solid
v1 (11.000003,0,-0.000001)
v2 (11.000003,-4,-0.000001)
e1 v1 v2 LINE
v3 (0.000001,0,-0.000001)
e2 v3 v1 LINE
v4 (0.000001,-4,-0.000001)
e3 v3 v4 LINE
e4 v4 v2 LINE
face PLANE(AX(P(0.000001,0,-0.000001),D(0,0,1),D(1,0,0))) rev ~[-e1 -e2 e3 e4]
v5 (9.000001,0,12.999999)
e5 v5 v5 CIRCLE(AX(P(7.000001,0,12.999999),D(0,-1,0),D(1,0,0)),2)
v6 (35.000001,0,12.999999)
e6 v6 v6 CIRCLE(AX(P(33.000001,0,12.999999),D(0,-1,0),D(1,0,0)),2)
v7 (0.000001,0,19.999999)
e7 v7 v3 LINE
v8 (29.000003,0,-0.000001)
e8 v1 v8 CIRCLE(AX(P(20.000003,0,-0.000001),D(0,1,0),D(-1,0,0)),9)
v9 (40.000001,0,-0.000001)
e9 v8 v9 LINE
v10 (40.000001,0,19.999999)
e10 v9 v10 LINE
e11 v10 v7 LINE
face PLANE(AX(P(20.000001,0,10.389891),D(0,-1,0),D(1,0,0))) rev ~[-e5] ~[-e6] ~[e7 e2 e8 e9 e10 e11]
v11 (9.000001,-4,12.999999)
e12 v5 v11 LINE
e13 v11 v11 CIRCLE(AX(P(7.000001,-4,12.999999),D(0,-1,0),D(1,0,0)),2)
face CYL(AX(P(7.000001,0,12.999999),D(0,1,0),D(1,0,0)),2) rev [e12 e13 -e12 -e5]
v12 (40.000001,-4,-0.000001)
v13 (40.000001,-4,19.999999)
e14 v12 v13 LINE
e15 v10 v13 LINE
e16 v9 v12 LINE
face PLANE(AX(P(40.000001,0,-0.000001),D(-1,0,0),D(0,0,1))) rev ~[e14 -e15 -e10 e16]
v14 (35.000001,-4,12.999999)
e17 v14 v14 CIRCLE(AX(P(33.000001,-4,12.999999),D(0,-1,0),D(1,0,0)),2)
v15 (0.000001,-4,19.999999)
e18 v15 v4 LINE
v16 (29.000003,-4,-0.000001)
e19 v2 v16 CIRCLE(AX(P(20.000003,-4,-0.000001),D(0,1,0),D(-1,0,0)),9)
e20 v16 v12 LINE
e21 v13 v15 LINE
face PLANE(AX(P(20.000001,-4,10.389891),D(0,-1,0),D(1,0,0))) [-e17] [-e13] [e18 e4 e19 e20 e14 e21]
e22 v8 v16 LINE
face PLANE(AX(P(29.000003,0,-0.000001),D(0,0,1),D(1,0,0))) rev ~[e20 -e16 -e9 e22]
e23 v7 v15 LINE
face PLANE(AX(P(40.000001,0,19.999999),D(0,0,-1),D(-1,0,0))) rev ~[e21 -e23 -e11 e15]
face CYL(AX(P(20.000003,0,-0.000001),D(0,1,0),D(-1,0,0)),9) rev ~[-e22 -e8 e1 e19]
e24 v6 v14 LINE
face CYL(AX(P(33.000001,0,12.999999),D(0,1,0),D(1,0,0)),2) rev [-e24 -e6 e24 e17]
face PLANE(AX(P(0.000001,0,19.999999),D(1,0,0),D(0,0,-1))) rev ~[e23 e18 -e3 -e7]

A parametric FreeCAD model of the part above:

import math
import FreeCAD as App
import Part
import Sketcher
from FreeCAD import Vector
Q = App.Units.Quantity

doc = App.newDocument("Part")
body = doc.addObject("PartDesign::Body", "Body")

# Sketch on XZ plane
sketch1 = doc.addObject("Sketcher::SketchObject", "Sketch")
body.addObject(sketch1)
sketch1.AttachmentSupport = (doc.XZ_Plane, [""])
sketch1.MapMode = "FlatFace"
sketch1.addGeometry([
    Part.LineSegment(Vector(40, 20, 0), Vector(0, 20, 0)),  # 0
    Part.LineSegment(Vector(0, 20, 0), Vector(0, 0, 0)),  # 1
    Part.LineSegment(Vector(0, 0, 0), Vector(11, 0, 0)),  # 2
    Part.ArcOfCircle(Part.Circle(Vector(20, 0, 0), Vector(0, 0, 1), 9), math.radians(0), math.radians(180)),  # 3
    Part.LineSegment(Vector(29, 0, 0), Vector(40, 0, 0)),  # 4
    Part.LineSegment(Vector(40, 0, 0), Vector(40, 20, 0)),  # 5
    Part.Circle(Vector(7, 13, 0), Vector(0, 0, 1), 2),  # 6
    Part.Circle(Vector(33, 13, 0), Vector(0, 0, 1), 2),  # 7
], False)
sketch1.addConstraint([
    Sketcher.Constraint("Coincident", 0, 2, 1, 1),
    Sketcher.Constraint("Coincident", 1, 2, 2, 1),
    Sketcher.Constraint("Coincident", 2, 2, 3, 2),
    Sketcher.Constraint("Coincident", 3, 1, 4, 1),
    Sketcher.Constraint("Coincident", 4, 2, 5, 1),
    Sketcher.Constraint("Coincident", 5, 2, 0, 1),
    Sketcher.Constraint("Horizontal", 0),
    Sketcher.Constraint("Vertical", 1),
    Sketcher.Constraint("Horizontal", 2),
    Sketcher.Constraint("Horizontal", 4),
    Sketcher.Constraint("Vertical", 5),
    Sketcher.Constraint("Coincident", 1, 2, -1, 1),
    Sketcher.Constraint("Equal", 6, 7),
    Sketcher.Constraint("PointOnObject", 3, 3, -1),
    Sketcher.Constraint("PointOnObject", 3, 1, -1),
    Sketcher.Constraint("Horizontal", 6, 3, 7, 3),
    Sketcher.Constraint("Diameter", 6, Q("4 mm")),
    Sketcher.Constraint("Radius", 3, Q("9 mm")),
    Sketcher.Constraint("DistanceX", 0, 2, 0, 1, Q("40 mm")),
    Sketcher.Constraint("DistanceY", 1, 2, 1, 1, Q("20 mm")),
    Sketcher.Constraint("DistanceX", -1, 1, 6, 3, Q("7.000001 mm")),
    Sketcher.Constraint("DistanceY", -1, 1, 6, 3, Q("12.999999 mm")),
    Sketcher.Constraint("DistanceX", -1, 1, 7, 3, Q("33.000001 mm")),
    Sketcher.Constraint("DistanceX", 6, 3, 3, 3, Q("13.000002 mm")),
])
pad1 = doc.addObject("PartDesign::Pad", "Pad")
body.addObject(pad1)
pad1.Profile = sketch1
pad1.Length = 4

doc.recompute()
